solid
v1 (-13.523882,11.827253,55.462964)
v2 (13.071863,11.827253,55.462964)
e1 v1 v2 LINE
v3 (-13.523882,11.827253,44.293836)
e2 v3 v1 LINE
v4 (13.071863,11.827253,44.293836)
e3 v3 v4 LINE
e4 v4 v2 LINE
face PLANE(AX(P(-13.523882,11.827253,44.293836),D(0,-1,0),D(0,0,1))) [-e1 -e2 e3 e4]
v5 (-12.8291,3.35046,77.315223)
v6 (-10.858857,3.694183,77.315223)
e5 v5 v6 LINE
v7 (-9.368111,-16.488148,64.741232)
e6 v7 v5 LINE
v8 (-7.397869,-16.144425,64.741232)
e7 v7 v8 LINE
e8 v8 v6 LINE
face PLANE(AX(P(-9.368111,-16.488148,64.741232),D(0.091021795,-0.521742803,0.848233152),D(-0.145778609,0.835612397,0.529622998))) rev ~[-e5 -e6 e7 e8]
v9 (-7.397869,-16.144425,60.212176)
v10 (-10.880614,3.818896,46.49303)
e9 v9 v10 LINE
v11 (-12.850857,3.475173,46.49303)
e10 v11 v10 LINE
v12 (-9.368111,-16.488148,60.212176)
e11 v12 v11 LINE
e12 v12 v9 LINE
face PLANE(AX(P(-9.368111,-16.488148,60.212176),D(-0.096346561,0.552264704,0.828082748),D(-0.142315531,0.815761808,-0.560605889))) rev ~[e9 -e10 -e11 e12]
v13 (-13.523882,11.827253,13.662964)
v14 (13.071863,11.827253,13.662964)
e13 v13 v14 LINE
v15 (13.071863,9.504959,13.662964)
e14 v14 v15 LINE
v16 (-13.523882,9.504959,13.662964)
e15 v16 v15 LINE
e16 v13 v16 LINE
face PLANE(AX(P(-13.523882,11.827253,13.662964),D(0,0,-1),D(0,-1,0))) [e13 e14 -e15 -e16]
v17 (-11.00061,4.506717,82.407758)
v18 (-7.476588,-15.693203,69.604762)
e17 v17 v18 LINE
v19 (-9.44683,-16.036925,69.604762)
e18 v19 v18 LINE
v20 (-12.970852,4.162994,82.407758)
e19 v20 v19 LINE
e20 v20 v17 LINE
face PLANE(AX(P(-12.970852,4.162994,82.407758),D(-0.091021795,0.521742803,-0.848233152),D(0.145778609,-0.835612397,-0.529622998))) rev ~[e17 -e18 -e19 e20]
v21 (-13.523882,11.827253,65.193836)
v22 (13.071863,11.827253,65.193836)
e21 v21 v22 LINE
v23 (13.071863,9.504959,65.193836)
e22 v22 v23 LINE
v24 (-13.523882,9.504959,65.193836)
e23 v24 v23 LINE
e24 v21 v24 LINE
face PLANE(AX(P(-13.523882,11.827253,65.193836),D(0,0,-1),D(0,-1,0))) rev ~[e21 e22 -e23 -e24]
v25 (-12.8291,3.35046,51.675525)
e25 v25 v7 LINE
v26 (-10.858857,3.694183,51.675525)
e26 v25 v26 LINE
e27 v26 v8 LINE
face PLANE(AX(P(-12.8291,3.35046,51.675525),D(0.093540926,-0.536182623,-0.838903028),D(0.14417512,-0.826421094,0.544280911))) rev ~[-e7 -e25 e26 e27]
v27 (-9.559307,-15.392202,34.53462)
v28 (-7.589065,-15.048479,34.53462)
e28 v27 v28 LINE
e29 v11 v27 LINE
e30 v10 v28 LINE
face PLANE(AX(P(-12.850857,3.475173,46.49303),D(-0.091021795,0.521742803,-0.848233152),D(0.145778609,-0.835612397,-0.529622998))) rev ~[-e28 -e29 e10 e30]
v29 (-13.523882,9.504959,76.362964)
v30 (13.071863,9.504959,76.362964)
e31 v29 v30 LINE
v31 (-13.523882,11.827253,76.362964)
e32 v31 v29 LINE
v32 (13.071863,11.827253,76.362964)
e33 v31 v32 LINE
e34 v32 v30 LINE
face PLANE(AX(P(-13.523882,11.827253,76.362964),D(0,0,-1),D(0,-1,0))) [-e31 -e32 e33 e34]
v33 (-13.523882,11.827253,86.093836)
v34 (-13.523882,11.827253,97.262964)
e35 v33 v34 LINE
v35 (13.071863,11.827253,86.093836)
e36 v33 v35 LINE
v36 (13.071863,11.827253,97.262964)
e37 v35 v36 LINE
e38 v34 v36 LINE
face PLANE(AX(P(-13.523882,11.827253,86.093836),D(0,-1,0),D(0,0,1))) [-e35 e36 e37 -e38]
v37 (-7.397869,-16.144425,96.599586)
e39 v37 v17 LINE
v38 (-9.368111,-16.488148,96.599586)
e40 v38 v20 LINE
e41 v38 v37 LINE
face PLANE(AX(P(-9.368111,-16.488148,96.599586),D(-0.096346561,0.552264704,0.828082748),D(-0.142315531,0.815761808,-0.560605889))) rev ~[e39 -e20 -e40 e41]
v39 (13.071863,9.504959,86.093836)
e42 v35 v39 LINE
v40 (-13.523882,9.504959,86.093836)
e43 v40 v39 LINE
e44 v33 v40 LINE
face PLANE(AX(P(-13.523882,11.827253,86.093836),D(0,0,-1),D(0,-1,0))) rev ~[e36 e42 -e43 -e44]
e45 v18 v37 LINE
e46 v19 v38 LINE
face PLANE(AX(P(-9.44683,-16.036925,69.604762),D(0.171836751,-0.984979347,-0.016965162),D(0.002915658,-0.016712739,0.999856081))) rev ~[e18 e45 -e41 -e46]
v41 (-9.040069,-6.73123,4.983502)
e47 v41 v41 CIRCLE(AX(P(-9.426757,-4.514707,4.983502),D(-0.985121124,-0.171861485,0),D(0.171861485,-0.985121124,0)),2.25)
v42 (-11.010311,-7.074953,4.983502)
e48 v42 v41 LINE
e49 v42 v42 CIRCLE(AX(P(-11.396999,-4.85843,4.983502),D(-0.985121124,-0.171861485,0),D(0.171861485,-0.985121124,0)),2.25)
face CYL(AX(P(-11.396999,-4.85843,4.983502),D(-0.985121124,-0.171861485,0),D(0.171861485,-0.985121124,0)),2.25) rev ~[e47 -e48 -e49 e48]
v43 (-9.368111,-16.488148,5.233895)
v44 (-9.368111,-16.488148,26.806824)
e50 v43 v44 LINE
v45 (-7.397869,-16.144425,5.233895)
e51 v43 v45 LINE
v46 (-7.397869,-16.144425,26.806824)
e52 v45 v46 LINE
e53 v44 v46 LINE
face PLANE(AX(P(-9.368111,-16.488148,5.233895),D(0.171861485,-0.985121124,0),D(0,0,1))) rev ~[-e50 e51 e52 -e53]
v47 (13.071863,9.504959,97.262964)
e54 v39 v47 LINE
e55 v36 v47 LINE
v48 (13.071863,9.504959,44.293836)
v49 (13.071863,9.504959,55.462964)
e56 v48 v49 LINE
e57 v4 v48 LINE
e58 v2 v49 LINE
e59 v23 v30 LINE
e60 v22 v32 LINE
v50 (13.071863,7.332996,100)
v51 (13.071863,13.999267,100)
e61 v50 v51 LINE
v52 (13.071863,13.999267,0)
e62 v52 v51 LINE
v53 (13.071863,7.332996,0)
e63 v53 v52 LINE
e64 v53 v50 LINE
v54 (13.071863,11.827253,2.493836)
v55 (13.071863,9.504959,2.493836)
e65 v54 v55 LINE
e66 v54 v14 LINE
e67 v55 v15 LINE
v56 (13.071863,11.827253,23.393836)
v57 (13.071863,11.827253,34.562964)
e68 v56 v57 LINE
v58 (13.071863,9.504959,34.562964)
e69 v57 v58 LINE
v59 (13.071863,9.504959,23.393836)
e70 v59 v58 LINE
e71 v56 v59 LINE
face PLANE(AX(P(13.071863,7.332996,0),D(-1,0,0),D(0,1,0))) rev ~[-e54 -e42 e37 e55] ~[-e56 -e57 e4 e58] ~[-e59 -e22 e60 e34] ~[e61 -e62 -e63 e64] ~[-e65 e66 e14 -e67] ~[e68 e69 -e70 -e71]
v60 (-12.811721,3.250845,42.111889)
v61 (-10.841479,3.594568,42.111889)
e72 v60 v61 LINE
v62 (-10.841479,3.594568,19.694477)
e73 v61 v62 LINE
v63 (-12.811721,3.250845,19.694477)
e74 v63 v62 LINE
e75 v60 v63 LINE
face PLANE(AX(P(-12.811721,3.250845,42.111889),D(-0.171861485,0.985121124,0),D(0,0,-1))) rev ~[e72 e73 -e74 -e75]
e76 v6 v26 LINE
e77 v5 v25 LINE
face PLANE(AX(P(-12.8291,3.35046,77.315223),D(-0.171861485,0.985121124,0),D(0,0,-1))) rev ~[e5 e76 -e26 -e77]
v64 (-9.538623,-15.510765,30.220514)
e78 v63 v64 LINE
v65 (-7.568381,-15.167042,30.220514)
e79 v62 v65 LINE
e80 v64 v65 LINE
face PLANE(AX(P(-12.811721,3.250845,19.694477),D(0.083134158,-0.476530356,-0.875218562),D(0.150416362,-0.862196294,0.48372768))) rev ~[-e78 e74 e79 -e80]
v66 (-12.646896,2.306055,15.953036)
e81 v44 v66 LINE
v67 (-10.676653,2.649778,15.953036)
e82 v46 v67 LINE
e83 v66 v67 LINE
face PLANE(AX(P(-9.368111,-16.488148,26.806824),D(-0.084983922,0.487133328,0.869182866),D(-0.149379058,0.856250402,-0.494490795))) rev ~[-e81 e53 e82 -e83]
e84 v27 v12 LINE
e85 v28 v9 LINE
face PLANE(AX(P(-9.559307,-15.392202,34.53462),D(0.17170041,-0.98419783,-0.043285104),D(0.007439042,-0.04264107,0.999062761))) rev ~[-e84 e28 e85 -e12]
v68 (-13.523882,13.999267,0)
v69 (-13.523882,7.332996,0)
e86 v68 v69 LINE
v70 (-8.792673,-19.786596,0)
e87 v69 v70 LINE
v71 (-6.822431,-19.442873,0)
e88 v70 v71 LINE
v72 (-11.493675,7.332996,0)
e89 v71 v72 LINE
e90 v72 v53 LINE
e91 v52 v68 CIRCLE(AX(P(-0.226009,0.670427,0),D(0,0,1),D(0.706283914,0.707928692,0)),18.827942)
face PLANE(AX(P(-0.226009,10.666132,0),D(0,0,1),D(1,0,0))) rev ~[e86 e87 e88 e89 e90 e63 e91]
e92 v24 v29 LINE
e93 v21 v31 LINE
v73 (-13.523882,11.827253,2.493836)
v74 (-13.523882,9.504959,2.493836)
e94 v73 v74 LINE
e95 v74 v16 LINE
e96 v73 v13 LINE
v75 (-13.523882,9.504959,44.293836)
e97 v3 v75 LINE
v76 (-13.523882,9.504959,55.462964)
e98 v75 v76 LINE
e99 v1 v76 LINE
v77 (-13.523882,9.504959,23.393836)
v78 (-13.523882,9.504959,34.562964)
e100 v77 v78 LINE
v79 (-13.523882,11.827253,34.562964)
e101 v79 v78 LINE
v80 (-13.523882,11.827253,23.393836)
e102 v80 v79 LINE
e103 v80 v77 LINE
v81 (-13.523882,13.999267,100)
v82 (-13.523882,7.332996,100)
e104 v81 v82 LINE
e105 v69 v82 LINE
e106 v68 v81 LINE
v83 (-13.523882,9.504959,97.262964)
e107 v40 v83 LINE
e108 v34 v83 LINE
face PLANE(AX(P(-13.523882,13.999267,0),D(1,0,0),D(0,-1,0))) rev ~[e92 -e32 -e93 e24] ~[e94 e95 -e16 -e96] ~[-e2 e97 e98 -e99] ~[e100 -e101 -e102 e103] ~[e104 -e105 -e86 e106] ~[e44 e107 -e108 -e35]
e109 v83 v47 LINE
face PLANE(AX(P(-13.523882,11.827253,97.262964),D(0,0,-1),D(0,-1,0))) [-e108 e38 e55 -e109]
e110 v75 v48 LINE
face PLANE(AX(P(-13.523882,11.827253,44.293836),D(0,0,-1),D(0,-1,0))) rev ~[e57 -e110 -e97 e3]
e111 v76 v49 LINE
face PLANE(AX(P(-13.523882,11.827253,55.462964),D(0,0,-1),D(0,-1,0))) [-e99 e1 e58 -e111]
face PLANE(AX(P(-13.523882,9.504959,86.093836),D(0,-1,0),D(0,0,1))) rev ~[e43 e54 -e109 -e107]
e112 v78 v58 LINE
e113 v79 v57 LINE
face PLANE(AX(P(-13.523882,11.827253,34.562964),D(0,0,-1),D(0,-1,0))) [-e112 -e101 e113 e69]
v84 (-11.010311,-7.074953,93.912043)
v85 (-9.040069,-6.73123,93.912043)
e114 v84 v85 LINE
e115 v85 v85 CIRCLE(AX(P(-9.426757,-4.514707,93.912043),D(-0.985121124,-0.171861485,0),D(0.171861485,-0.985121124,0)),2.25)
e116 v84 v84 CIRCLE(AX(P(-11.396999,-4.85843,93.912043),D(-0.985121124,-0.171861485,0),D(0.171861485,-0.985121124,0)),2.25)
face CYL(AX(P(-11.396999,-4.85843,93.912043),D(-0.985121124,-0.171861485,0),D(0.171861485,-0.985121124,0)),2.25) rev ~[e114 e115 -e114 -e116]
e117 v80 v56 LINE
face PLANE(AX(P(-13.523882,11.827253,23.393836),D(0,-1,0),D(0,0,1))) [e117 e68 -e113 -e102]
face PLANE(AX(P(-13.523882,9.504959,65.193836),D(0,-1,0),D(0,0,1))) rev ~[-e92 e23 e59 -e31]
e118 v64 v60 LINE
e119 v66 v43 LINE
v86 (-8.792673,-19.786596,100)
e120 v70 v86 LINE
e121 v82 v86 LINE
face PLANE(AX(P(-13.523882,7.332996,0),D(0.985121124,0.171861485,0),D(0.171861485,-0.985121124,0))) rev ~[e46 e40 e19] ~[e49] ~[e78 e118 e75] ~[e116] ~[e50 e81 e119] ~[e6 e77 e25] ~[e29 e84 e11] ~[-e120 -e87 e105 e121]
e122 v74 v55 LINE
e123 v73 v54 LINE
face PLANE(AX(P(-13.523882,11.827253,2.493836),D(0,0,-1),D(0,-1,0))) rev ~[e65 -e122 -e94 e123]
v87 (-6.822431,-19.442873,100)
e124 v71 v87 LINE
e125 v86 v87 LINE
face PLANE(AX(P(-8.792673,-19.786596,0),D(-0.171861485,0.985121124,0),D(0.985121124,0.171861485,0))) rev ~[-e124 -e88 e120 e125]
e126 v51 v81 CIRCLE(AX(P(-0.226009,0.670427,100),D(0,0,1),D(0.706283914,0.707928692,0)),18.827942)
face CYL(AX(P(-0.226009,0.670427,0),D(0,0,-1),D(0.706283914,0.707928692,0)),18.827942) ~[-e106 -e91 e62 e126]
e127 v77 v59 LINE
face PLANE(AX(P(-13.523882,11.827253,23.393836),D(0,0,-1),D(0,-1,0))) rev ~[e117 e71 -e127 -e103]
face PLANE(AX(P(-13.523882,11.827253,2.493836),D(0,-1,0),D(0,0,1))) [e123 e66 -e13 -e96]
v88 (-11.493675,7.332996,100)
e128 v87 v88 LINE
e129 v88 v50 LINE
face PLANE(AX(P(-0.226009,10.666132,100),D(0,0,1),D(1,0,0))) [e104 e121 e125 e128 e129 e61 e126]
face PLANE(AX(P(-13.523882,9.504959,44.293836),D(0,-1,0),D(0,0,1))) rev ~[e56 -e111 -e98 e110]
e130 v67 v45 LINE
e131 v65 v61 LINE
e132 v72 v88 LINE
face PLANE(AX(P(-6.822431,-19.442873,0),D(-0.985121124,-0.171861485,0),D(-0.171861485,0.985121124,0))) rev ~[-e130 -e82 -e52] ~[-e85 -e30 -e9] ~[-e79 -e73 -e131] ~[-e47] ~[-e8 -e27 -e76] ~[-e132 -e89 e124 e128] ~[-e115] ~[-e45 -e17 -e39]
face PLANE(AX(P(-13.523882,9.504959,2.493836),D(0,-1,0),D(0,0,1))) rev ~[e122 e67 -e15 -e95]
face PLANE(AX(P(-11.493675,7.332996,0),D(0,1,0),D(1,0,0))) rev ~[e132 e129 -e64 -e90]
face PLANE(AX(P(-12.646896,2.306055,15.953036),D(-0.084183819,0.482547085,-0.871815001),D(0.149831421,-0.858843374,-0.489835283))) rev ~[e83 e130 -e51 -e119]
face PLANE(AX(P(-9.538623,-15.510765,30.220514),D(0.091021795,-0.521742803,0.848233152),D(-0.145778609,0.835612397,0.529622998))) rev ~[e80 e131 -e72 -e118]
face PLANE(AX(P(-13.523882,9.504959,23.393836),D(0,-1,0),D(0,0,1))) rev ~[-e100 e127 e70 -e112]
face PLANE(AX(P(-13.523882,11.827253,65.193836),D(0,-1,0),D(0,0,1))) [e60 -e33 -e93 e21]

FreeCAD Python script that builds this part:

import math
import FreeCAD as App
import Part
import Sketcher
Q = App.Units.Quantity

doc = App.newDocument("Part")
params = doc.addObject("Spreadsheet::Sheet", "Params")
for row, (alias, value) in enumerate([
    ("sketch1_length", "2 mm"),
    ("pad1_length", "100 mm"),
    ("sketch3_diameter", "4.5 mm"),
    ("pocket2_length", "5 mm"),
], start=1):
    params.set(f"A{row}", alias)
    params.set(f"B{row}", "=" + value)
    params.setAlias(f"B{row}", alias)

body = doc.addObject("PartDesign::Body", "Body")

sketch1 = body.newObject("Sketcher::SketchObject", "Sketch")
sketch1.AttachmentSupport = (doc.getObject("XY_Plane"), [""])
sketch1.MapMode = "FlatFace"
sketch1.addGeometry([
    Part.LineSegment(App.Vector(13.071863, 7.332996, 0), App.Vector(13.071863, 13.999267, 0)),
    Part.ArcOfCircle(Part.Circle(App.Vector(-0.226009, 0.670427, 0), App.Vector(0, 0, 1), 18.827942), math.radians(45.066637), math.radians(134.933363)),
    Part.LineSegment(App.Vector(-13.523882, 13.999267, 0), App.Vector(-13.523882, 7.332996, 0)),
    Part.LineSegment(App.Vector(-13.523882, 7.332996, 0), App.Vector(-8.792673, -19.786596, 0)),
    Part.LineSegment(App.Vector(-8.792673, -19.786596, 0), App.Vector(-6.822431, -19.442873, 0)),
    Part.LineSegment(App.Vector(-6.822431, -19.442873, 0), App.Vector(-11.493675, 7.332996, 0)),
    Part.LineSegment(App.Vector(-11.493675, 7.332996, 0), App.Vector(13.071863, 7.332996, 0)),
], False)
sketch1.addConstraint([
    Sketcher.Constraint("Coincident", 0, 2, 1, 1),
    Sketcher.Constraint("Coincident", 1, 2, 2, 1),
    Sketcher.Constraint("Coincident", 2, 2, 3, 1),
    Sketcher.Constraint("Coincident", 3, 2, 4, 1),
    Sketcher.Constraint("Coincident", 4, 2, 5, 1),
    Sketcher.Constraint("Coincident", 5, 2, 6, 1),
    Sketcher.Constraint("Coincident", 6, 2, 0, 1),
    Sketcher.Constraint("Vertical", 0),
    Sketcher.Constraint("Vertical", 2),
    Sketcher.Constraint("Horizontal", 6),
    Sketcher.Constraint("Perpendicular", 3, 4),
    Sketcher.Constraint("Perpendicular", 4, 5),
    Sketcher.Constraint("Horizontal", 0, 2, 1, 2),
    Sketcher.Constraint("Horizontal", 2, 2, 5, 2),
    Sketcher.Constraint("Distance", 4, Q("2 mm")),
    Sketcher.Constraint("Radius", 1, Q("18.827942 mm")),
    Sketcher.Constraint("DistanceY", 0, 1, 0, 2, Q("6.666271 mm")),
    Sketcher.Constraint("DistanceY", 4, 2, 1, 3, Q("20.1133 mm")),
    Sketcher.Constraint("Distance", 5, Q("27.180281 mm")),
    Sketcher.Constraint("DistanceX", 6, 1, 6, 2, Q("24.565537 mm")),
    Sketcher.Constraint("DistanceX", 1, 3, -1, 1, Q("0.226009 mm")),
    Sketcher.Constraint("DistanceY", -1, 1, 1, 3, Q("0.670427 mm")),
])
sketch1.setExpression("Constraints[14]", "Params.sketch1_length")
pad1 = body.newObject("PartDesign::Pad", "Pad")
pad1.Profile = sketch1
pad1.setExpression("Length", "Params.pad1_length")

sketch2 = body.newObject("Sketcher::SketchObject", "Sketch001")
sketch2.AttachmentSupport = (doc.getObject("YZ_Plane"), [""])
sketch2.MapMode = "FlatFace"
sketch2.AttachmentOffset = App.Placement(App.Vector(0, 0, -13.523882), App.Rotation())
sketch2.addGeometry([
    Part.LineSegment(App.Vector(11.827253, 97.262964, 0), App.Vector(11.827253, 86.093836, 0)),
    Part.LineSegment(App.Vector(11.827253, 86.093836, 0), App.Vector(9.504959, 86.093836, 0)),
    Part.LineSegment(App.Vector(9.504959, 86.093836, 0), App.Vector(9.504959, 97.262964, 0)),
    Part.LineSegment(App.Vector(9.504959, 97.262964, 0), App.Vector(11.827253, 97.262964, 0)),
    Part.LineSegment(App.Vector(11.827253, 76.362964, 0), App.Vector(11.827253, 65.193836, 0)),
    Part.LineSegment(App.Vector(11.827253, 65.193836, 0), App.Vector(9.504959, 65.193836, 0)),
    Part.LineSegment(App.Vector(9.504959, 65.193836, 0), App.Vector(9.504959, 76.362964, 0)),
    Part.LineSegment(App.Vector(9.504959, 76.362964, 0), App.Vector(11.827253, 76.362964, 0)),
    Part.LineSegment(App.Vector(11.827253, 55.462964, 0), App.Vector(11.827253, 44.293836, 0)),
    Part.LineSegment(App.Vector(11.827253, 44.293836, 0), App.Vector(9.504959, 44.293836, 0)),
    Part.LineSegment(App.Vector(9.504959, 44.293836, 0), App.Vector(9.504959, 55.462964, 0)),
    Part.LineSegment(App.Vector(9.504959, 55.462964, 0), App.Vector(11.827253, 55.462964, 0)),
    Part.LineSegment(App.Vector(11.827253, 34.562964, 0), App.Vector(11.827253, 23.393836, 0)),
    Part.LineSegment(App.Vector(11.827253, 23.393836, 0), App.Vector(9.504959, 23.393836, 0)),
    Part.LineSegment(App.Vector(9.504959, 23.393836, 0), App.Vector(9.504959, 34.562964, 0)),
    Part.LineSegment(App.Vector(9.504959, 34.562964, 0), App.Vector(11.827253, 34.562964, 0)),
    Part.LineSegment(App.Vector(11.827253, 13.662964, 0), App.Vector(11.827253, 2.493836, 0)),
    Part.LineSegment(App.Vector(11.827253, 2.493836, 0), App.Vector(9.504959, 2.493836, 0)),
    Part.LineSegment(App.Vector(9.504959, 2.493836, 0), App.Vector(9.504959, 13.662964, 0)),
    Part.LineSegment(App.Vector(9.504959, 13.662964, 0), App.Vector(11.827253, 13.662964, 0)),
], False)
sketch2.addConstraint([
    Sketcher.Constraint("Coincident", 0, 2, 1, 1),
    Sketcher.Constraint("Coincident", 1, 2, 2, 1),
    Sketcher.Constraint("Coincident", 2, 2, 3, 1),
    Sketcher.Constraint("Coincident", 3, 2, 0, 1),
    Sketcher.Constraint("Coincident", 4, 2, 5, 1),
    Sketcher.Constraint("Coincident", 5, 2, 6, 1),
    Sketcher.Constraint("Coincident", 6, 2, 7, 1),
    Sketcher.Constraint("Coincident", 7, 2, 4, 1),
    Sketcher.Constraint("Coincident", 8, 2, 9, 1),
    Sketcher.Constraint("Coincident", 9, 2, 10, 1),
    Sketcher.Constraint("Coincident", 10, 2, 11, 1),
    Sketcher.Constraint("Coincident", 11, 2, 8, 1),
    Sketcher.Constraint("Coincident", 12, 2, 13, 1),
    Sketcher.Constraint("Coincident", 13, 2, 14, 1),
    Sketcher.Constraint("Coincident", 14, 2, 15, 1),
    Sketcher.Constraint("Coincident", 15, 2, 12, 1),
    Sketcher.Constraint("Coincident", 16, 2, 17, 1),
    Sketcher.Constraint("Coincident", 17, 2, 18, 1),
    Sketcher.Constraint("Coincident", 18, 2, 19, 1),
    Sketcher.Constraint("Coincident", 19, 2, 16, 1),
    Sketcher.Constraint("Vertical", 0),
    Sketcher.Constraint("Horizontal", 1),
    Sketcher.Constraint("Vertical", 2),
    Sketcher.Constraint("Horizontal", 3),
    Sketcher.Constraint("Vertical", 4),
    Sketcher.Constraint("Horizontal", 5),
    Sketcher.Constraint("Vertical", 6),
    Sketcher.Constraint("Horizontal", 7),
    Sketcher.Constraint("Vertical", 8),
    Sketcher.Constraint("Horizontal", 9),
    Sketcher.Constraint("Vertical", 10),
    Sketcher.Constraint("Horizontal", 11),
    Sketcher.Constraint("Vertical", 12),
    Sketcher.Constraint("Horizontal", 13),
    Sketcher.Constraint("Vertical", 14),
    Sketcher.Constraint("Horizontal", 15),
    Sketcher.Constraint("Vertical", 16),
    Sketcher.Constraint("Horizontal", 17),
    Sketcher.Constraint("Vertical", 18),
    Sketcher.Constraint("Horizontal", 19),
    Sketcher.Constraint("Vertical", 3, 2, 4, 2),
    Sketcher.Constraint("Vertical", 2, 2, 5, 2),
    Sketcher.Constraint("Vertical", 7, 2, 8, 2),
    Sketcher.Constraint("Vertical", 6, 2, 9, 2),
    Sketcher.Constraint("Vertical", 11, 2, 12, 2),
    Sketcher.Constraint("Vertical", 10, 2, 13, 2),
    Sketcher.Constraint("Vertical", 15, 2, 16, 2),
    Sketcher.Constraint("Vertical", 14, 2, 17, 2),
    Sketcher.Constraint("Equal", 2, 4),
    Sketcher.Constraint("Equal", 6, 8),
    Sketcher.Constraint("Equal", 10, 12),
    Sketcher.Constraint("Equal", 14, 16),
    Sketcher.Constraint("DistanceY", 4, 2, 0, 2, Q("20.9 mm")),
    Sketcher.Constraint("DistanceY", 8, 2, 4, 2, Q("20.9 mm")),
    Sketcher.Constraint("DistanceY", 12, 2, 8, 2, Q("20.9 mm")),
    Sketcher.Constraint("DistanceY", 16, 2, 12, 2, Q("20.9 mm")),
    Sketcher.Constraint("DistanceY", 0, 2, 0, 1, Q("11.169128 mm")),
    Sketcher.Constraint("DistanceX", 1, 2, 1, 1, Q("2.322294 mm")),
    Sketcher.Constraint("DistanceX", -1, 1, 1, 2, Q("9.504959 mm")),
    Sketcher.Constraint("DistanceY", -1, 1, 0, 2, Q("86.093836 mm")),
])
pocket1 = body.newObject("PartDesign::Pocket", "Pocket")
pocket1.Profile = sketch2
pocket1.Type = "ThroughAll"
pocket1.Reversed = True

sketch3 = body.newObject("Sketcher::SketchObject", "Sketch002")
sketch3.Placement = App.Placement(App.Vector(-11.882927, -2.073062, 0), App.Rotation(App.Vector(0.171861485, -0.985121124, 0), App.Vector(0, 0, 0.999999999), App.Vector(-0.985121124, -0.171861485, 0), "ZXY"))
sketch3.addGeometry([
    Part.Circle(App.Vector(2.827437, 93.912042, 0), App.Vector(0, 0, 1), 2.25),
    Part.Circle(App.Vector(2.827437, 4.983501, 0), App.Vector(0, 0, 1), 2.25),
    Part.LineSegment(App.Vector(14.174768, 69.604762, 0), App.Vector(14.632805, 96.599586, 0)),
    Part.LineSegment(App.Vector(14.632805, 96.599586, 0), App.Vector(-6.330243, 82.407757, 0)),
    Part.LineSegment(App.Vector(-6.330243, 82.407757, 0), App.Vector(14.174768, 69.604762, 0)),
    Part.LineSegment(App.Vector(-5.505437, 51.675524, 0), App.Vector(14.632805, 64.741231, 0)),
    Part.LineSegment(App.Vector(14.632805, 64.741231, 0), App.Vector(-5.505437, 77.315223, 0)),
    Part.LineSegment(App.Vector(-5.505437, 77.315223, 0), App.Vector(-5.505437, 51.675524, 0)),
    Part.LineSegment(App.Vector(13.520307, 34.53462, 0), App.Vector(14.632805, 60.212176, 0)),
    Part.LineSegment(App.Vector(14.632805, 60.212176, 0), App.Vector(-5.632034, 46.49303, 0)),
    Part.LineSegment(App.Vector(-5.632034, 46.49303, 0), App.Vector(13.520307, 34.53462, 0)),
    Part.LineSegment(App.Vector(-5.404318, 19.694477, 0), App.Vector(13.64066, 30.220514, 0)),
    Part.LineSegment(App.Vector(13.64066, 30.220514, 0), App.Vector(-5.404318, 42.111889, 0)),
    Part.LineSegment(App.Vector(-5.404318, 42.111889, 0), App.Vector(-5.404318, 19.694477, 0)),
    Part.LineSegment(App.Vector(14.632805, 5.233895, 0), App.Vector(14.632805, 26.806824, 0)),
    Part.LineSegment(App.Vector(14.632805, 26.806824, 0), App.Vector(-4.445258, 15.953036, 0)),
    Part.LineSegment(App.Vector(-4.445258, 15.953036, 0), App.Vector(14.632805, 5.233895, 0)),
], False)
sketch3.addConstraint([
    Sketcher.Constraint("Coincident", 2, 2, 3, 1),
    Sketcher.Constraint("Coincident", 3, 2, 4, 1),
    Sketcher.Constraint("Coincident", 4, 2, 2, 1),
    Sketcher.Constraint("Coincident", 5, 2, 6, 1),
    Sketcher.Constraint("Coincident", 6, 2, 7, 1),
    Sketcher.Constraint("Coincident", 7, 2, 5, 1),
    Sketcher.Constraint("Coincident", 8, 2, 9, 1),
    Sketcher.Constraint("Coincident", 9, 2, 10, 1),
    Sketcher.Constraint("Coincident", 10, 2, 8, 1),
    Sketcher.Constraint("Coincident", 11, 2, 12, 1),
    Sketcher.Constraint("Coincident", 12, 2, 13, 1),
    Sketcher.Constraint("Coincident", 13, 2, 11, 1),
    Sketcher.Constraint("Coincident", 14, 2, 15, 1),
    Sketcher.Constraint("Coincident", 15, 2, 16, 1),
    Sketcher.Constraint("Coincident", 16, 2, 14, 1),
    Sketcher.Constraint("Vertical", 7),
    Sketcher.Constraint("Vertical", 13),
    Sketcher.Constraint("Vertical", 14),
    Sketcher.Constraint("Equal", 0, 1),
    Sketcher.Constraint("Parallel", 4, 6),
    Sketcher.Constraint("Parallel", 3, 9),
    Sketcher.Constraint("Parallel", 6, 10),
    Sketcher.Constraint("Parallel", 10, 12),
    Sketcher.Constraint("Vertical", 0, 3, 1, 3),
    Sketcher.Constraint("Vertical", 2, 2, 5, 2),
    Sketcher.Constraint("Vertical", 5, 2, 8, 2),
    Sketcher.Constraint("Vertical", 8, 2, 14, 2),
    Sketcher.Constraint("Diameter", 0, Q("4.5 mm")),
    Sketcher.Constraint("Angle", 4, Q("-31.979986 deg")),
    Sketcher.Constraint("DistanceY", 7, 2, 7, 1, Q("25.639698 mm")),
    Sketcher.Constraint("Distance", 6, Q("23.7414 mm")),
    Sketcher.Constraint("Distance", 10, Q("22.579099 mm")),
    Sketcher.Constraint("DistanceY", 13, 2, 13, 1, Q("22.417411 mm")),
    Sketcher.Constraint("DistanceY", 14, 1, 14, 2, Q("21.572929 mm")),
    Sketcher.Constraint("DistanceY", -1, 1, 1, 3, Q("4.983501 mm")),
    Sketcher.Constraint("DistanceY", 9, 2, 5, 2, Q("18.248201 mm")),
    Sketcher.Constraint("DistanceX", 9, 2, 4, 2, Q("19.806801 mm")),
    Sketcher.Constraint("DistanceX", 10, 2, 8, 2, Q("1.112498 mm")),
    Sketcher.Constraint("Distance", 2, Q("26.99871 mm")),
    Sketcher.Constraint("Distance", 3, Q("25.315162 mm")),
    Sketcher.Constraint("DistanceY", -1, 1, 4, 2, Q("69.604762 mm")),
    Sketcher.Constraint("DistanceY", -1, 1, 5, 2, Q("64.741231 mm")),
    Sketcher.Constraint("DistanceX", -1, 1, 11, 2, Q("13.64066 mm")),
    Sketcher.Constraint("DistanceY", -1, 1, 12, 2, Q("42.111889 mm")),
    Sketcher.Constraint("DistanceY", 1, 3, 0, 3, Q("88.928541 mm")),
    Sketcher.Constraint("DistanceX", 0, 3, 2, 2, Q("11.805368 mm")),
    Sketcher.Constraint("DistanceY", 11, 2, 7, 2, Q("21.45501 mm")),
    Sketcher.Constraint("DistanceX", 7, 2, 12, 2, Q("0.10112 mm")),
    Sketcher.Constraint("DistanceY", 14, 2, 11, 2, Q("3.41369 mm")),
    Sketcher.Constraint("DistanceX", 13, 2, 15, 2, Q("0.95906 mm")),
    Sketcher.Constraint("DistanceY", 15, 2, 13, 2, Q("3.741441 mm")),
])
sketch3.setExpression("Constraints[27]", "Params.sketch3_diameter")
pocket2 = body.newObject("PartDesign::Pocket", "Pocket001")
pocket2.Profile = sketch3
pocket2.setExpression("Length", "Params.pocket2_length")

doc.recompute()
